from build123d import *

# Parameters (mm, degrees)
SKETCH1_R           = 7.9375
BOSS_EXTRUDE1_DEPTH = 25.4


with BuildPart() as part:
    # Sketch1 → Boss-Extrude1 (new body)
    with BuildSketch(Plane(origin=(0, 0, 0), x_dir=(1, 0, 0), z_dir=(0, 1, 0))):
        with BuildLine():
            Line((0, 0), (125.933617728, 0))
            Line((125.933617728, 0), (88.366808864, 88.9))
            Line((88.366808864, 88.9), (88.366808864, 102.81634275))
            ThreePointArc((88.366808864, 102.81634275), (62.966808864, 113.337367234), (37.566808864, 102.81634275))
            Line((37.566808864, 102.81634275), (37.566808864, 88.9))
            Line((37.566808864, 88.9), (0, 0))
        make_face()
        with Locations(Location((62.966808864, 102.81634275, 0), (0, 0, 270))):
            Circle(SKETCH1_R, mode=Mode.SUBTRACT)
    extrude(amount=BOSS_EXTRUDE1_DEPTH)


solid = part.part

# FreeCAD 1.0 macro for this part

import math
import FreeCAD as App
import Part
import Sketcher
Q = App.Units.Quantity

doc = App.newDocument("Part")
body = doc.addObject("PartDesign::Body", "Body")

# Sketch on XZ plane
sketch1 = body.newObject("Sketcher::SketchObject", "Sketch")
sketch1.AttachmentSupport = (doc.getObject("XZ_Plane"), [""])
sketch1.MapMode = "FlatFace"
sketch1.addGeometry([
    Part.LineSegment(App.Vector(0, 0, 0), App.Vector(126, 0, 0)),  # 0
    Part.LineSegment(App.Vector(126, 0, 0), App.Vector(88, -89, 0)),  # 1
    Part.LineSegment(App.Vector(88, -89, 0), App.Vector(88, -103, 0)),  # 2
    Part.ArcOfCircle(Part.Circle(App.Vector(63, -77, 0), App.Vector(0, 0, 1), 36), math.radians(-135), math.radians(-45)),  # 3
    Part.LineSegment(App.Vector(38, -103, 0), App.Vector(38, -89, 0)),  # 4
    Part.LineSegment(App.Vector(38, -89, 0), App.Vector(0, 0, 0)),  # 5
    Part.Circle(App.Vector(63, -103, 0), App.Vector(0, 0, 1), 8),  # 6
], False)
sketch1.addConstraint([
    Sketcher.Constraint("Coincident", 0, 2, 1, 1),
    Sketcher.Constraint("Coincident", 1, 2, 2, 1),
    Sketcher.Constraint("Coincident", 2, 2, 3, 2),
    Sketcher.Constraint("Coincident", 3, 1, 4, 1),
    Sketcher.Constraint("Coincident", 4, 2, 5, 1),
    Sketcher.Constraint("Coincident", 5, 2, 0, 1),
    Sketcher.Constraint("Horizontal", 0),
    Sketcher.Constraint("Vertical", 2),
    Sketcher.Constraint("Vertical", 4),
    Sketcher.Constraint("Coincident", 5, 2, -1, 1),
    Sketcher.Constraint("Horizontal", 6, 3, 2, 2),
    Sketcher.Constraint("Horizontal", 2, 2, 3, 1),
    Sketcher.Constraint("Horizontal", 1, 2, 4, 2),
    Sketcher.Constraint("Vertical", 3, 3, 6, 3),
    Sketcher.Constraint("Equal", 1, 5),
    Sketcher.Constraint("Diameter", 6, Q("0.625 in")),
    Sketcher.Constraint("DistanceY", 6, 3, 3, 3, Q("1 in")),
    Sketcher.Constraint("DistanceX", 3, 3, 1, 2, Q("1 in")),
    Sketcher.Constraint("DistanceY", 1, 2, -1, 1, Q("3.5 in")),
    Sketcher.Constraint("Distance", 1, 96.511528),
    Sketcher.Constraint("DistanceY", 2, 2, 2, 1, 13.916343),
])
pad1 = body.newObject("PartDesign::Pad", "Pad")
pad1.Profile = sketch1
pad1.Length = Q("1 in")
pad1.Reversed = True

doc.recompute()
